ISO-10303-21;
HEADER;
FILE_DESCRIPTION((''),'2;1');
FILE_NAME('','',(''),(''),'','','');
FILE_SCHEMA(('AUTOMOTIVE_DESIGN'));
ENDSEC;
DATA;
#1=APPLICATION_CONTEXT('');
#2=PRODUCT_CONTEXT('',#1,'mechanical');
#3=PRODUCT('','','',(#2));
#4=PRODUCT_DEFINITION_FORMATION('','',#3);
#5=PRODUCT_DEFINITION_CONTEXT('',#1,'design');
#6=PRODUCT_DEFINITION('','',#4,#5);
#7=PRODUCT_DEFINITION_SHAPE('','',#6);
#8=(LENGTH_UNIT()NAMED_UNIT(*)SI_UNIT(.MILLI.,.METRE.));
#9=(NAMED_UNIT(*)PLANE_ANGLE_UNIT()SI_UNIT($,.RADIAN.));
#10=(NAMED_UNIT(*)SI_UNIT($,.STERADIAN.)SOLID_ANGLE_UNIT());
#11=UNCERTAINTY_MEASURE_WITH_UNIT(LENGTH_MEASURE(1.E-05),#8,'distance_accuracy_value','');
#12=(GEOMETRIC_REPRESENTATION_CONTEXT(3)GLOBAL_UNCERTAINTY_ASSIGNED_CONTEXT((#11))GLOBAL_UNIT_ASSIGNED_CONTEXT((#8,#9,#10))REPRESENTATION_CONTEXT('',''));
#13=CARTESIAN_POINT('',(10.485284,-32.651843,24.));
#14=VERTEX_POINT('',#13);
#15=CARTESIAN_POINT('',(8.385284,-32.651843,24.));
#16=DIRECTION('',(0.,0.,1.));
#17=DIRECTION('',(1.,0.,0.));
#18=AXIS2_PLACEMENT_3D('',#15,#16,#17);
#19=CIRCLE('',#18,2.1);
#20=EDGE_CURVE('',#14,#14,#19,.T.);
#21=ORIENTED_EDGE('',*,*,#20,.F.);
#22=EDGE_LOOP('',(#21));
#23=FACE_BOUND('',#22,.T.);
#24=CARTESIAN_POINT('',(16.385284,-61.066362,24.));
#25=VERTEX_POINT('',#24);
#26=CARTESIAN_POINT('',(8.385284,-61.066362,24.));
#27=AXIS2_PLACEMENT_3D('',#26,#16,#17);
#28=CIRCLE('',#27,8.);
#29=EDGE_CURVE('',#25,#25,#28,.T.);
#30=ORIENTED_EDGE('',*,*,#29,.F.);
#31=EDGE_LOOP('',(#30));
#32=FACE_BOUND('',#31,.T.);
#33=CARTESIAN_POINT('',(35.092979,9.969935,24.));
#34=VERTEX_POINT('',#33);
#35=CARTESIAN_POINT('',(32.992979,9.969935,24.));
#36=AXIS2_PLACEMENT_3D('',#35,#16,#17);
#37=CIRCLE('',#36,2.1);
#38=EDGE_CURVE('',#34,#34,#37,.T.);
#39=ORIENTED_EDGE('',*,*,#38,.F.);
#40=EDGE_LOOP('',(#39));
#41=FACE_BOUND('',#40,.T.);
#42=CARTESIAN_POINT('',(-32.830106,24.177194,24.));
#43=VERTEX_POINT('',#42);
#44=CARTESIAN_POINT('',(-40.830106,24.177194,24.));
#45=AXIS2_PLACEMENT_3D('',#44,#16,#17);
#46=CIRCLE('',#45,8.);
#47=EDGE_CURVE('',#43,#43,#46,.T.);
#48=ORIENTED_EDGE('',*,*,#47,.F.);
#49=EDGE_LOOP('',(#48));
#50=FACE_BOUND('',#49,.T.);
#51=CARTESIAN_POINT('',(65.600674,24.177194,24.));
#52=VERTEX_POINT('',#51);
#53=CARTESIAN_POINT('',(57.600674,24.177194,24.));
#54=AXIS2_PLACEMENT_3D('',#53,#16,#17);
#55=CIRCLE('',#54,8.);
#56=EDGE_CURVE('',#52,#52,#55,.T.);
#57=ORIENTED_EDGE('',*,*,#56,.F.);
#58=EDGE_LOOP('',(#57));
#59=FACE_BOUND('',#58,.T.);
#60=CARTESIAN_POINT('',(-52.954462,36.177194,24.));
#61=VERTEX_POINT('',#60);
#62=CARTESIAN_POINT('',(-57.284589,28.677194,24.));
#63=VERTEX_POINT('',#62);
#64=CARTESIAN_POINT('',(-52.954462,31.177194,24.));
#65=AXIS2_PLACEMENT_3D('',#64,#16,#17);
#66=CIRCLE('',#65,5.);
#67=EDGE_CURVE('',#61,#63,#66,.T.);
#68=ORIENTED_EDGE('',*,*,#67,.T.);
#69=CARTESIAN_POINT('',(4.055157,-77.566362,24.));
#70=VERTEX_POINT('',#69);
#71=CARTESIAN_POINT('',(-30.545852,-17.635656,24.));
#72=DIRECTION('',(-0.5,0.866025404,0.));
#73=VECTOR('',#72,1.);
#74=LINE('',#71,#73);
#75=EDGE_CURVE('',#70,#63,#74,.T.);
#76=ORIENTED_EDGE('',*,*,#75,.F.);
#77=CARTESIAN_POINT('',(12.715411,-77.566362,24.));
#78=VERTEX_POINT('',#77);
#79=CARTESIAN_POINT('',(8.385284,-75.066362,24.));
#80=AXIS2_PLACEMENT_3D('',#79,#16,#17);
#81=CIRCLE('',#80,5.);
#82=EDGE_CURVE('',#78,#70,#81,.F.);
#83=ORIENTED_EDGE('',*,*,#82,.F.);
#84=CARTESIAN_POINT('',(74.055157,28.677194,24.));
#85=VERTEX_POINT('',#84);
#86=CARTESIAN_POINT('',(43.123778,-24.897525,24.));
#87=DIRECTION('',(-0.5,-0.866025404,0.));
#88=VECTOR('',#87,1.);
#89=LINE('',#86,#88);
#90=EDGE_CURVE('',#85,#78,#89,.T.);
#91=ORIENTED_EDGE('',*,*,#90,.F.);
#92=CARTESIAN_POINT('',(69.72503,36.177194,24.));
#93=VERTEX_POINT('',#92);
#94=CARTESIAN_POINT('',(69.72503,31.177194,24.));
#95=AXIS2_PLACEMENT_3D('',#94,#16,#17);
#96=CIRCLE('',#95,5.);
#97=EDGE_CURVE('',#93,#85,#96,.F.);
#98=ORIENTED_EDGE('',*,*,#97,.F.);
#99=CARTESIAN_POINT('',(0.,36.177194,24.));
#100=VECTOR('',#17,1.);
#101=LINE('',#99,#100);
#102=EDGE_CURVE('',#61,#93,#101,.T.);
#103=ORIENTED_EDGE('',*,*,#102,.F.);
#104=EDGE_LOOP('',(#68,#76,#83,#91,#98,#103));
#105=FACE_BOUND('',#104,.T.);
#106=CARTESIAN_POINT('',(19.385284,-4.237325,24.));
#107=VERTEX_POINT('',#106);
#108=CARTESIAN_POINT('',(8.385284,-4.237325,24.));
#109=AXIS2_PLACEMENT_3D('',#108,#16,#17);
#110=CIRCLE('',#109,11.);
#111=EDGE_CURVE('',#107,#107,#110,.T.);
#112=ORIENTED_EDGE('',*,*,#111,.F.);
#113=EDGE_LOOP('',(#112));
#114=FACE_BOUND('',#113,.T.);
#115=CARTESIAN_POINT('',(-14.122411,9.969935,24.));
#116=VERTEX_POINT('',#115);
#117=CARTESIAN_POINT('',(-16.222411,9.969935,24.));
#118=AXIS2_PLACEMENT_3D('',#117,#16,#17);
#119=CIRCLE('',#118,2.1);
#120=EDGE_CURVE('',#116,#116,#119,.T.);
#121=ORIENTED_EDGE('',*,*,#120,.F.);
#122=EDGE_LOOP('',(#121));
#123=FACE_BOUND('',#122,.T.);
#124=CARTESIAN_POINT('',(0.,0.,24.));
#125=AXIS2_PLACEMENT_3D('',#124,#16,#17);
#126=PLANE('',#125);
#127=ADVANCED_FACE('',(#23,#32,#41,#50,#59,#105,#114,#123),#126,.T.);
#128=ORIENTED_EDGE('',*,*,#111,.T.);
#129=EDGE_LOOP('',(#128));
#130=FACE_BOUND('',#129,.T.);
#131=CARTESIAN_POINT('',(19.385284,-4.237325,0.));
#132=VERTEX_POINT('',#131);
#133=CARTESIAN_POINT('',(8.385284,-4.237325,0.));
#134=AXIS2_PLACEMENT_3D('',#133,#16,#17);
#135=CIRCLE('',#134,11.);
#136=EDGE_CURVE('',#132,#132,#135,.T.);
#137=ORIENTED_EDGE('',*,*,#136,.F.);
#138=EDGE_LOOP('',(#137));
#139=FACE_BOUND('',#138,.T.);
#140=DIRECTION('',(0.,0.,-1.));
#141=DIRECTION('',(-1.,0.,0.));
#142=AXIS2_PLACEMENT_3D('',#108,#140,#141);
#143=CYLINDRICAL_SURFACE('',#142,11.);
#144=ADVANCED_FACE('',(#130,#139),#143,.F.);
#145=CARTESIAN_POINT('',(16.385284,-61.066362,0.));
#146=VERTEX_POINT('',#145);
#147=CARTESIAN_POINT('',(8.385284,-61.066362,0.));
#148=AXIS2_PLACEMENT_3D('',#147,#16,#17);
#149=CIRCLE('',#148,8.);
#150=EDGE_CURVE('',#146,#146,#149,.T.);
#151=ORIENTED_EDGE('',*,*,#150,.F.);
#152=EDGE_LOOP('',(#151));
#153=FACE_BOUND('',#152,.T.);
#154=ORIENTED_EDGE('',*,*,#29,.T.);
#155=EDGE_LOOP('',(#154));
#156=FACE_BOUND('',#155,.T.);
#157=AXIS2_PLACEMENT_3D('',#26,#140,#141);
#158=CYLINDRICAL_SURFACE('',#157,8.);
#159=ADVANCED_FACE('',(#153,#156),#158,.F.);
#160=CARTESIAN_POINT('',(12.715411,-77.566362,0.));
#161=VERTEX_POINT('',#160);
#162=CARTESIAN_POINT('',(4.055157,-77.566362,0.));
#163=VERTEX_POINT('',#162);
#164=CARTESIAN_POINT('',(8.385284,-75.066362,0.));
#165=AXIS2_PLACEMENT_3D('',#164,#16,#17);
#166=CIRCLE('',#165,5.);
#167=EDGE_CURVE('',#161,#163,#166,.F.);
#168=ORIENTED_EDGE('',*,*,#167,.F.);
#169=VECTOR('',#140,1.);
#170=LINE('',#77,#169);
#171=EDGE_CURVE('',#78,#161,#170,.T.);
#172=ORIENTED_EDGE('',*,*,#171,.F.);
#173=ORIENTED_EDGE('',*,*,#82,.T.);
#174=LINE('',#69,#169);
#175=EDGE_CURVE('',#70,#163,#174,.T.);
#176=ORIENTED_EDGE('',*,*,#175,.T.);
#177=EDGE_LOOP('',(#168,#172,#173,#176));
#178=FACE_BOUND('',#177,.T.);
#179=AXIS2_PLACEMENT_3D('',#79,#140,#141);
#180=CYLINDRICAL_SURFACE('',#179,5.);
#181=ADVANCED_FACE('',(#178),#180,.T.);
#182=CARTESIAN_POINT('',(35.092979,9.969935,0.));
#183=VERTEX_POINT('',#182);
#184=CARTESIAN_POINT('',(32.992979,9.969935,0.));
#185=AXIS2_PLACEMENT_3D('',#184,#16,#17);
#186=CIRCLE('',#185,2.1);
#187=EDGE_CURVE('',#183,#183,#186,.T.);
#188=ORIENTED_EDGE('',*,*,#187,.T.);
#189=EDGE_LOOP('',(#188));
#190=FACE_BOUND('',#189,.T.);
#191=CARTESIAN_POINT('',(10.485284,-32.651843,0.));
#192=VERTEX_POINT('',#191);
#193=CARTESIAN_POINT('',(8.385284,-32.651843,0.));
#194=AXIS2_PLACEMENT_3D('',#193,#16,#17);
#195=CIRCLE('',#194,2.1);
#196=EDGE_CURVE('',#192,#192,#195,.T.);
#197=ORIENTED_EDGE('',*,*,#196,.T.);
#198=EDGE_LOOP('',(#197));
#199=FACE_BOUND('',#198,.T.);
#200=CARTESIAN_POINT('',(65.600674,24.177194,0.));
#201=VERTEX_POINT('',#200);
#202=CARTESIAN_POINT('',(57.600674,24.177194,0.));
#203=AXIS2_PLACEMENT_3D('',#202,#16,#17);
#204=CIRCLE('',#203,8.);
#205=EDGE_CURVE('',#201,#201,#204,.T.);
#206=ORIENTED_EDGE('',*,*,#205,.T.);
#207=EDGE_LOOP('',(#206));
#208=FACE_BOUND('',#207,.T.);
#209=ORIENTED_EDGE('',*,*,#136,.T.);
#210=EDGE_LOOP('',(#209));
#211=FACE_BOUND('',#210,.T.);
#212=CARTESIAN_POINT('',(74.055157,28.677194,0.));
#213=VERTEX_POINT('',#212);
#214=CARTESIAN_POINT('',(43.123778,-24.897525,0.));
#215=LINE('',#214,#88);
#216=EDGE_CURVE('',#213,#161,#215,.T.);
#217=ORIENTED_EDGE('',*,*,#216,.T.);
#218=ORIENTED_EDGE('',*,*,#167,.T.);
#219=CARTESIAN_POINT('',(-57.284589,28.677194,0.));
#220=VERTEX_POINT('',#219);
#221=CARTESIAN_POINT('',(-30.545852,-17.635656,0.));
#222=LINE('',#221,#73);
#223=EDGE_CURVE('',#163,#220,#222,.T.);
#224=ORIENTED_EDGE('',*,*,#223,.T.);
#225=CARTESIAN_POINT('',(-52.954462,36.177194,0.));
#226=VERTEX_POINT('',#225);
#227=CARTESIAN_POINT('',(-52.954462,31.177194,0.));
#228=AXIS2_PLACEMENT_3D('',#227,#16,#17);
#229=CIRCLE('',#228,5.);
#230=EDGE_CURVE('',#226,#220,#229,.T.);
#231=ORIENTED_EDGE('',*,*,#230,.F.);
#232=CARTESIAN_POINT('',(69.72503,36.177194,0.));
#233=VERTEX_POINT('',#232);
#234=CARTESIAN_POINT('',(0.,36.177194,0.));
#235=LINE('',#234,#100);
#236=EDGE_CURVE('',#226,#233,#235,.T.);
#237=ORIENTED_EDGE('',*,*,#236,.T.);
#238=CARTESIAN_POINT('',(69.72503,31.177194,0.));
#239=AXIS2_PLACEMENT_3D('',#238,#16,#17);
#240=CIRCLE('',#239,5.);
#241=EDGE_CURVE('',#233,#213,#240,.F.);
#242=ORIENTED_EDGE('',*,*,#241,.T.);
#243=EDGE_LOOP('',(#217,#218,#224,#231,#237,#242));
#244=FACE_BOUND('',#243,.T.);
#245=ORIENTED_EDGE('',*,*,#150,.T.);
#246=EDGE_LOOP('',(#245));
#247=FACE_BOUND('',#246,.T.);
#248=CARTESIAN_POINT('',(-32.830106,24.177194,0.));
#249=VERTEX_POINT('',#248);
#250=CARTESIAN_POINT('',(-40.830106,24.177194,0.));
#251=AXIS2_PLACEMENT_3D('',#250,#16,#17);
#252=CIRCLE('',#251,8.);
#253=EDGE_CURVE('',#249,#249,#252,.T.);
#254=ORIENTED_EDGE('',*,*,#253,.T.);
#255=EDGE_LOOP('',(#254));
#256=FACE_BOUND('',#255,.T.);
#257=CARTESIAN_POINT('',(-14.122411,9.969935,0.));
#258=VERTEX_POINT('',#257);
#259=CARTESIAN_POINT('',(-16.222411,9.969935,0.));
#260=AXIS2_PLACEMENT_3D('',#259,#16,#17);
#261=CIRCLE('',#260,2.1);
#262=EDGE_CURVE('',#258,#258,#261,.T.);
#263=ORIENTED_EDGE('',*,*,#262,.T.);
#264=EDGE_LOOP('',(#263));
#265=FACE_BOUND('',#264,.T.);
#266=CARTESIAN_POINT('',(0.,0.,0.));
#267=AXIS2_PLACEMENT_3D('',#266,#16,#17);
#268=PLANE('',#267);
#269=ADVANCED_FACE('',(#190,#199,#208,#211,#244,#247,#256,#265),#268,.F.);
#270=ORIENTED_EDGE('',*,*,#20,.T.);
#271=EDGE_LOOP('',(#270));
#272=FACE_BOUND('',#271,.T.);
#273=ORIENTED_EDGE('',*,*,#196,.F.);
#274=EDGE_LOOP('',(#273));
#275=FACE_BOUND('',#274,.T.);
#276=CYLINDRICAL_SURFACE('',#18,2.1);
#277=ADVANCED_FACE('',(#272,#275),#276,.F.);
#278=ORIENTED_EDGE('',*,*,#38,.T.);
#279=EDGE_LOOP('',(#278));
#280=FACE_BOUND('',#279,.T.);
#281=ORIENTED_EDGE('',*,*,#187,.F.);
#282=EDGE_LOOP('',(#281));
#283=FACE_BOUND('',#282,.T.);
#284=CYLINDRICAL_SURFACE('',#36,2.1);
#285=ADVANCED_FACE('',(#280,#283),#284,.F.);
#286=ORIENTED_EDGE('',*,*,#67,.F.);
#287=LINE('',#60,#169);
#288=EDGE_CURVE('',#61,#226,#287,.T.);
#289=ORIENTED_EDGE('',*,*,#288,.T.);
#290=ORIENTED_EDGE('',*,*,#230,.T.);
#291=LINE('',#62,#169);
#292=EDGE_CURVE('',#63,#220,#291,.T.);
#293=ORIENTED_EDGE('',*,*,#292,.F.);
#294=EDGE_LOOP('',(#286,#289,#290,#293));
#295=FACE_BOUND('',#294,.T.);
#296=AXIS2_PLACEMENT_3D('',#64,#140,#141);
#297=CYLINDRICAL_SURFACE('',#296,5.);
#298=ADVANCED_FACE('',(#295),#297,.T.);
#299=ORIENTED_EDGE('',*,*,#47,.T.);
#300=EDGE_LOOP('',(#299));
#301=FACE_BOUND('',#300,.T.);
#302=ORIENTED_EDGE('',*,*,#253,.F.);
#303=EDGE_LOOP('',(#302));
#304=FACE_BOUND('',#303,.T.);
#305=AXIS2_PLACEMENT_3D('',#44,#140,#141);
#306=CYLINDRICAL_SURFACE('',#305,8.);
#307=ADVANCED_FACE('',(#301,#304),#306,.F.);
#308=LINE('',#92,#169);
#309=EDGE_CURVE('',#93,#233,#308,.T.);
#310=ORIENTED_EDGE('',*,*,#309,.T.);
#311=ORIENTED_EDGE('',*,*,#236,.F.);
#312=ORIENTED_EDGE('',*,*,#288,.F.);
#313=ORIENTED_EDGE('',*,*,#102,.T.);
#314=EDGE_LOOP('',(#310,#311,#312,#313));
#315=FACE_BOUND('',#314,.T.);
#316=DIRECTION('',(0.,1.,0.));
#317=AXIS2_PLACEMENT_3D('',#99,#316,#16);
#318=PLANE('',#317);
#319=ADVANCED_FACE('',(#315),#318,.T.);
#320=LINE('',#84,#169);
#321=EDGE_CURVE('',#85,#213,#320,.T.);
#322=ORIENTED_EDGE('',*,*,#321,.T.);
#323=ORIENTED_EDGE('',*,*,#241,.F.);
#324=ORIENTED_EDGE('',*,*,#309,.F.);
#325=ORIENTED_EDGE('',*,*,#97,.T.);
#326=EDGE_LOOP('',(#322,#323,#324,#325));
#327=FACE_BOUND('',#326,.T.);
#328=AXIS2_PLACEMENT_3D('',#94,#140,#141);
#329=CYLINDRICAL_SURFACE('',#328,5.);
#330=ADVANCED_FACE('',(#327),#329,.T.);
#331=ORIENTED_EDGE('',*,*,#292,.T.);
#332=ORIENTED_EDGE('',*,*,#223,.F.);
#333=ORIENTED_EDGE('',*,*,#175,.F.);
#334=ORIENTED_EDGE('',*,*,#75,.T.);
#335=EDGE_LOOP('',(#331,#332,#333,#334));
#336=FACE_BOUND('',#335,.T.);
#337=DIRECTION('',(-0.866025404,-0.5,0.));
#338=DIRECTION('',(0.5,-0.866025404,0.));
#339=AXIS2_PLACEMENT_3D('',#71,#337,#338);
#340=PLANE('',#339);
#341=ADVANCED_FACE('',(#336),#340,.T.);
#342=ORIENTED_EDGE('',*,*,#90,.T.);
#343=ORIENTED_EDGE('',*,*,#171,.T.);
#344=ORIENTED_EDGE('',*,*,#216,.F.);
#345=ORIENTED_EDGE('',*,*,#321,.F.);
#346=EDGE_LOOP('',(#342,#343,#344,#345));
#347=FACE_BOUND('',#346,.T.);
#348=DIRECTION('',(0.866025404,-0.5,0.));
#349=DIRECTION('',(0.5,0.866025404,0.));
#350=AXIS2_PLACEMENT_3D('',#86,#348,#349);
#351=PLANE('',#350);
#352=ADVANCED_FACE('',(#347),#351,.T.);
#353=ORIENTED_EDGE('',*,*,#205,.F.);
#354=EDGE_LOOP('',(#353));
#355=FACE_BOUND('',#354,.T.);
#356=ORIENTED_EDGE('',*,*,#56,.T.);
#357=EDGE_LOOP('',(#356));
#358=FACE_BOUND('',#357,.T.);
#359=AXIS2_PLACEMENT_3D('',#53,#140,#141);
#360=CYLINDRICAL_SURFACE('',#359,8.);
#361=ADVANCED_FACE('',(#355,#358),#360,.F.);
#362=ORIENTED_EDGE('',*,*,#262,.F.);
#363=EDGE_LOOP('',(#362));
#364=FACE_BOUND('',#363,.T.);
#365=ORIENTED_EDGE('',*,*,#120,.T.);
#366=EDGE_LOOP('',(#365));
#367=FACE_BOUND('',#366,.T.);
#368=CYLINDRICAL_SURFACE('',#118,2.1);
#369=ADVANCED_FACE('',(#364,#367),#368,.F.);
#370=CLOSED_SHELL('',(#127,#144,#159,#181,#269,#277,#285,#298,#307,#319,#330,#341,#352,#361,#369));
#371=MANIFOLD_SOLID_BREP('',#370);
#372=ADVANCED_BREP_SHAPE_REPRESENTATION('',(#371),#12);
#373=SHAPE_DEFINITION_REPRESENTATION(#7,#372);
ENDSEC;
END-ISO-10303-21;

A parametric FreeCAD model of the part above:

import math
import FreeCAD as App
import Part
import Sketcher
from FreeCAD import Vector
Q = App.Units.Quantity

doc = App.newDocument("Part")
body = doc.addObject("PartDesign::Body", "Body")

sketch1 = body.newObject("Sketcher::SketchObject", "Sketch")
sketch1.AttachmentSupport = (doc.getObject("XY_Plane"), [""])
sketch1.MapMode = "FlatFace"
sketch1.addGeometry(Part.LineSegment(Vector(70, 36, 0), Vector(-53, 36, 0)), False)
sketch1.addGeometry(Part.ArcOfCircle(Part.Circle(Vector(-53, 31, 0), Vector(0, 0, 1), 5), math.radians(90), math.radians(210)), False)
sketch1.addGeometry(Part.LineSegment(Vector(-57, 29, 0), Vector(4, -78, 0)), False)
sketch1.addGeometry(Part.ArcOfCircle(Part.Circle(Vector(8, -75, 0), Vector(0, 0, 1), 5), math.radians(-150), math.radians(-30)), False)
sketch1.addGeometry(Part.LineSegment(Vector(13, -78, 0), Vector(74, 29, 0)), False)
sketch1.addGeometry(Part.ArcOfCircle(Part.Circle(Vector(70, 31, 0), Vector(0, 0, 1), 5), math.radians(-30), math.radians(90)), False)
sketch1.addGeometry(Part.Circle(Vector(8, -61, 0), Vector(0, 0, 1), 8), False)
sketch1.addGeometry(Part.Circle(Vector(8, -4, 0), Vector(0, 0, 1), 11), False)
sketch1.addGeometry(Part.Circle(Vector(58, 24, 0), Vector(0, 0, 1), 8), False)
sketch1.addGeometry(Part.Circle(Vector(-41, 24, 0), Vector(0, 0, 1), 8), False)
sketch1.addConstraint(Sketcher.Constraint("Tangent", 0, 2, 1, 1))
sketch1.addConstraint(Sketcher.Constraint("Tangent", 1, 2, 2, 1))
sketch1.addConstraint(Sketcher.Constraint("Tangent", 2, 2, 3, 1))
sketch1.addConstraint(Sketcher.Constraint("Tangent", 3, 2, 4, 1))
sketch1.addConstraint(Sketcher.Constraint("Tangent", 4, 2, 5, 1))
sketch1.addConstraint(Sketcher.Constraint("Tangent", 5, 2, 0, 1))
sketch1.addConstraint(Sketcher.Constraint("Horizontal", 0))
sketch1.addConstraint(Sketcher.Constraint("Equal", 1, 3))
sketch1.addConstraint(Sketcher.Constraint("Equal", 3, 5))
sketch1.addConstraint(Sketcher.Constraint("Equal", 6, 8))
sketch1.addConstraint(Sketcher.Constraint("Equal", 8, 9))
sketch1.addConstraint(Sketcher.Constraint("Horizontal", 8, 3, 9, 3))
sketch1.addConstraint(Sketcher.Constraint("Horizontal", 2, 2, 3, 2))
sketch1.addConstraint(Sketcher.Constraint("Vertical", 3, 3, 6, 3))
sketch1.addConstraint(Sketcher.Constraint("Vertical", 6, 3, 7, 3))
sketch1.addConstraint(Sketcher.Constraint("Diameter", 6, Q("16 mm")))
sketch1.addConstraint(Sketcher.Constraint("Diameter", 7, Q("22 mm")))
sketch1.addConstraint(Sketcher.Constraint("Radius", 1, Q("5 mm")))
sketch1.addConstraint(Sketcher.Constraint("Angle", 2, Q("-60 deg")))
sketch1.addConstraint(Sketcher.Constraint("DistanceY", 3, 3, 6, 3, Q("14 mm")))
sketch1.addConstraint(Sketcher.Constraint("DistanceY", 8, 3, 5, 3, Q("7 mm")))
sketch1.addConstraint(Sketcher.Constraint("DistanceX", 0, 2, 0, 1, Q("122.679492 mm")))
sketch1.addConstraint(Sketcher.Constraint("DistanceX", -1, 1, 5, 3, Q("69.72503 mm")))
sketch1.addConstraint(Sketcher.Constraint("DistanceY", 7, 3, 1, 3, Q("35.414519 mm")))
sketch1.addConstraint(Sketcher.Constraint("DistanceX", 7, 3, 8, 3, Q("49.21539 mm")))
sketch1.addConstraint(Sketcher.Constraint("DistanceX", 9, 3, 7, 3, Q("49.21539 mm")))
sketch1.addConstraint(Sketcher.Constraint("DistanceY", -1, 1, 1, 3, Q("31.177194 mm")))
pad1 = body.newObject("PartDesign::Pad", "Pad")
pad1.Profile = sketch1
pad1.Length = 24

sketch2 = body.newObject("Sketcher::SketchObject", "Sketch001")
sketch2.AttachmentSupport = (doc.getObject("XY_Plane"), [""])
sketch2.MapMode = "FlatFace"
sketch2.AttachmentOffset = App.Placement(Vector(0, 0, 24), App.Rotation())
sketch2.addGeometry(Part.Circle(Vector(-16.2, 10, 0), Vector(0, 0, 1), 2.1), False)
sketch2.addGeometry(Part.Circle(Vector(33, 10, 0), Vector(0, 0, 1), 2.1), False)
sketch2.addGeometry(Part.Circle(Vector(8.4, -32.7, 0), Vector(0, 0, 1), 2.1), False)
sketch2.addConstraint(Sketcher.Constraint("Equal", 0, 1))
sketch2.addConstraint(Sketcher.Constraint("Equal", 1, 2))
sketch2.addConstraint(Sketcher.Constraint("Horizontal", 0, 3, 1, 3))
sketch2.addConstraint(Sketcher.Constraint("Diameter", 0, Q("4.2 mm")))
sketch2.addConstraint(Sketcher.Constraint("DistanceX", 0, 3, -1, 1, Q("16.222411 mm")))
sketch2.addConstraint(Sketcher.Constraint("DistanceX", -1, 1, 1, 3, Q("32.992979 mm")))
sketch2.addConstraint(Sketcher.Constraint("DistanceY", 2, 3, 1, 3, Q("42.621778 mm")))
sketch2.addConstraint(Sketcher.Constraint("DistanceY", -1, 1, 0, 3, Q("9.969935 mm")))
sketch2.addConstraint(Sketcher.Constraint("DistanceX", -1, 1, 2, 3, Q("8.385284 mm")))
doc.recompute()
hole = body.newObject("PartDesign::Hole", "Hole")
hole.Profile = sketch2
hole.ThreadType = "None"
hole.Diameter = 4.2
hole.DepthType = "ThroughAll"

doc.recompute()
